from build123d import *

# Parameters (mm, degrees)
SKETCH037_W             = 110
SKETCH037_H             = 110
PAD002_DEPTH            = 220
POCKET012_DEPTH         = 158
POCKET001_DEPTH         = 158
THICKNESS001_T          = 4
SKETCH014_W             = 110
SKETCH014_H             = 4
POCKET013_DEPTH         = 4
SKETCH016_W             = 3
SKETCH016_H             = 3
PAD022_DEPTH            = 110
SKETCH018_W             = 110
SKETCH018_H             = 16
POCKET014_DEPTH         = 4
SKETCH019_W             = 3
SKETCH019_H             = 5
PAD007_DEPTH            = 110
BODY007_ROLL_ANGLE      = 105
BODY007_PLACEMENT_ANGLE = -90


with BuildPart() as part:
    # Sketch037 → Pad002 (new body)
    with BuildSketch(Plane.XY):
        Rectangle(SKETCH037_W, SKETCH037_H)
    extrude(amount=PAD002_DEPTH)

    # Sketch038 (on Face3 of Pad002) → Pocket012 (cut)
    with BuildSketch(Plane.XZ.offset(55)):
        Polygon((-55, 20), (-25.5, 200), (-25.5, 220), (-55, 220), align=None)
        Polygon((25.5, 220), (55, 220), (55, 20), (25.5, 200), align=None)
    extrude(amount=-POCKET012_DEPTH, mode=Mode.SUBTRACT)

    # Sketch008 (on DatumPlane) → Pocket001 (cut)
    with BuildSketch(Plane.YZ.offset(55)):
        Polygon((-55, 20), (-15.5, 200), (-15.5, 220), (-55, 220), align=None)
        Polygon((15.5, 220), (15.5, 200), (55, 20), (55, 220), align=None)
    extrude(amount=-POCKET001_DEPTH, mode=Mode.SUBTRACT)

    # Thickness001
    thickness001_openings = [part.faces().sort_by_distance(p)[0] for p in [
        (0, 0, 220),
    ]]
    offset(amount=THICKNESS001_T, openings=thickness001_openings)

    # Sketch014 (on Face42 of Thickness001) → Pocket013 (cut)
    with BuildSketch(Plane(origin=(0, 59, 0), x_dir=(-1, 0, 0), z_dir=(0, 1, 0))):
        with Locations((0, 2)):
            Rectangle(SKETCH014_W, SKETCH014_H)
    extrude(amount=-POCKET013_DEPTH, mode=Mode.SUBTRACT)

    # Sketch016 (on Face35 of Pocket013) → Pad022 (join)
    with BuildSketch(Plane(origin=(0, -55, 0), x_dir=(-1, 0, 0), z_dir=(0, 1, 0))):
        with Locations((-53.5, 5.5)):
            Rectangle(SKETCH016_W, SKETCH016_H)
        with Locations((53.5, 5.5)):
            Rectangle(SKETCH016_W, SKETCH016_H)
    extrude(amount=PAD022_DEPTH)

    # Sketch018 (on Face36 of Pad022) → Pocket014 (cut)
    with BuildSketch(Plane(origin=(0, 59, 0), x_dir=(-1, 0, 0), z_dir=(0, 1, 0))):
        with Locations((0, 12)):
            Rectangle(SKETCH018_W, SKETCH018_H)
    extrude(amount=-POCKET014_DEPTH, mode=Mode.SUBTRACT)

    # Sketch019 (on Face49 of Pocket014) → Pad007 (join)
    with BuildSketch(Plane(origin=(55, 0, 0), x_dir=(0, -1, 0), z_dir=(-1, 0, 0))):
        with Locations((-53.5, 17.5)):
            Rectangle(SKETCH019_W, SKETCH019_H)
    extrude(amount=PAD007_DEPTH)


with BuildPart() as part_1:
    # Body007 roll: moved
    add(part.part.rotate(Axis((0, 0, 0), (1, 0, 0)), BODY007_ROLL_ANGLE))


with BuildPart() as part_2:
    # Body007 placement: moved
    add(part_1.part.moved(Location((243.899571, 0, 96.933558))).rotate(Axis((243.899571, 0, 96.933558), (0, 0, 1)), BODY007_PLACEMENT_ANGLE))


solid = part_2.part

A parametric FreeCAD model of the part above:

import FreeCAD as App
import Part
import Sketcher


def faces_at(feature, points):
    """Names of the faces that lie closest to the given points."""
    faces = feature.Shape.Faces
    near = lambda p: min(range(len(faces)), key=lambda i: faces[i].distToShape(Part.Vertex(*p))[0])
    return sorted({f"Face{near(p) + 1}" for p in points})


def add_polygon(sketch, points):
    """Adds a closed chain of lines whose ends are joined by coincident constraints."""
    first, n = sketch.GeometryCount, len(points)
    for a, b in zip(points, points[1:] + points[:1]):
        sketch.addGeometry(Part.LineSegment(App.Vector(*a, 0), App.Vector(*b, 0)), False)
    for i in range(n):
        sketch.addConstraint(Sketcher.Constraint("Coincident", first + i, 2, first + (i + 1) % n, 1))

doc = App.newDocument("Part")
body = doc.addObject("PartDesign::Body", "Body")

# Sketch on XY plane
sketch1 = body.newObject("Sketcher::SketchObject", "Sketch")
sketch1.AttachmentSupport = (doc.getObject("XY_Plane"), [""])
sketch1.MapMode = "FlatFace"
add_polygon(sketch1, [(-55, 55), (-55, -55), (55, -55), (55, 55)])  # lines 0-3
sketch1.addConstraint(Sketcher.Constraint("Vertical", 0))
sketch1.addConstraint(Sketcher.Constraint("Horizontal", 1))
sketch1.addConstraint(Sketcher.Constraint("Vertical", 2))
sketch1.addConstraint(Sketcher.Constraint("Horizontal", 3))
sketch1.addConstraint(Sketcher.Constraint("Symmetric", 0, 2, 2, 2, -1, 1))
sketch1.addConstraint(Sketcher.Constraint("Equal", 3, 0))
sketch1.addConstraint(Sketcher.Constraint("DistanceX", 1, 1, 1, 2, 110.0))
pad1 = body.newObject("PartDesign::Pad", "Pad")
pad1.Profile = sketch1
pad1.Length = 220

# Sketch on XZ plane
sketch2 = body.newObject("Sketcher::SketchObject", "Sketch001")
sketch2.AttachmentSupport = (doc.getObject("XZ_Plane"), [""])
sketch2.MapMode = "FlatFace"
sketch2.AttachmentOffset = App.Placement(App.Vector(0, 0, 55), App.Rotation())
add_polygon(sketch2, [(-55, 20), (-26, 200), (-26, 220), (-55, 220)])  # lines 0-3
add_polygon(sketch2, [(55, 220), (26, 220), (26, 200), (55, 20)])  # lines 4-7
sketch2.addConstraint(Sketcher.Constraint("Vertical", 1))
sketch2.addConstraint(Sketcher.Constraint("Horizontal", 2))
sketch2.addConstraint(Sketcher.Constraint("Vertical", 3))
sketch2.addConstraint(Sketcher.Constraint("Horizontal", 4))
sketch2.addConstraint(Sketcher.Constraint("Vertical", 5))
sketch2.addConstraint(Sketcher.Constraint("Vertical", 7))
sketch2.addConstraint(Sketcher.Constraint("Symmetric", 1, 2, 4, 2, -2))
sketch2.addConstraint(Sketcher.Constraint("Symmetric", 3, 2, 6, 2, -2))
sketch2.addConstraint(Sketcher.Constraint("Horizontal", 0, 2, 5, 2))
sketch2.addConstraint(Sketcher.Constraint("DistanceY", 1, 1, 1, 2, 20.0))
sketch2.addConstraint(Sketcher.Constraint("DistanceY", 3, 2, 3, 1, 200.0))
sketch2.addConstraint(Sketcher.Constraint("DistanceX", 2, 2, 2, 1, 29.5))
sketch2.addConstraint(Sketcher.Constraint("DistanceY", -1, 1, 0, 2, 200.0))
sketch2.addConstraint(Sketcher.Constraint("DistanceX", 2, 2, -1, 1, 55.0))
pocket1 = body.newObject("PartDesign::Pocket", "Pocket")
pocket1.Profile = sketch2
pocket1.Length = 158

# Sketch on YZ plane
sketch3 = body.newObject("Sketcher::SketchObject", "Sketch002")
sketch3.AttachmentSupport = (doc.getObject("YZ_Plane"), [""])
sketch3.MapMode = "FlatFace"
sketch3.AttachmentOffset = App.Placement(App.Vector(0, 0, 55), App.Rotation())
add_polygon(sketch3, [(-55, 20), (-16, 200), (-16, 220), (-55, 220)])  # lines 0-3
add_polygon(sketch3, [(16, 220), (16, 200), (55, 20), (55, 220)])  # lines 4-7
sketch3.addConstraint(Sketcher.Constraint("Vertical", 1))
sketch3.addConstraint(Sketcher.Constraint("Horizontal", 2))
sketch3.addConstraint(Sketcher.Constraint("Vertical", 3))
sketch3.addConstraint(Sketcher.Constraint("Vertical", 4))
sketch3.addConstraint(Sketcher.Constraint("Vertical", 6))
sketch3.addConstraint(Sketcher.Constraint("Horizontal", 7))
sketch3.addConstraint(Sketcher.Constraint("Symmetric", 0, 2, 4, 2, -2))
sketch3.addConstraint(Sketcher.Constraint("Symmetric", 3, 2, 5, 2, -2))
sketch3.addConstraint(Sketcher.Constraint("Horizontal", 2, 2, 6, 2))
sketch3.addConstraint(Sketcher.Constraint("DistanceY", 1, 1, 1, 2, 20.0))
sketch3.addConstraint(Sketcher.Constraint("DistanceY", 3, 2, 3, 1, 200.0))
sketch3.addConstraint(Sketcher.Constraint("DistanceX", 2, 2, 2, 1, 39.5))
sketch3.addConstraint(Sketcher.Constraint("DistanceY", -1, 1, 0, 2, 200.0))
sketch3.addConstraint(Sketcher.Constraint("DistanceX", 2, 2, -1, 1, 55.0))
pocket2 = body.newObject("PartDesign::Pocket", "Pocket001")
pocket2.Profile = sketch3
pocket2.Length = 158
doc.recompute()

thickness = body.newObject("PartDesign::Thickness", "Thickness")
thickness.Base = (pocket2, faces_at(pocket2, [(0, 0, 220)]))
thickness.Value = 4
thickness.Reversed = False
thickness.Join = "Arc"

# Sketch on XZ plane
sketch4 = body.newObject("Sketcher::SketchObject", "Sketch003")
sketch4.AttachmentSupport = (doc.getObject("XZ_Plane"), [""])
sketch4.MapMode = "FlatFace"
sketch4.AttachmentOffset = App.Placement(App.Vector(0, 0, -59), App.Rotation())
add_polygon(sketch4, [(55, 4), (55, 0), (-55, 0), (-55, 4)])  # lines 0-3
sketch4.addConstraint(Sketcher.Constraint("Vertical", 0))
sketch4.addConstraint(Sketcher.Constraint("Horizontal", 1))
sketch4.addConstraint(Sketcher.Constraint("Vertical", 2))
sketch4.addConstraint(Sketcher.Constraint("Horizontal", 3))
sketch4.addConstraint(Sketcher.Constraint("Symmetric", 0, 2, 1, 2, -1, 1))
sketch4.addConstraint(Sketcher.Constraint("DistanceX", 1, 2, 1, 1, 110.0))
sketch4.addConstraint(Sketcher.Constraint("DistanceY", 0, 2, 0, 1, 4.0))
pocket3 = body.newObject("PartDesign::Pocket", "Pocket002")
pocket3.Profile = sketch4
pocket3.Length = 4
pocket3.Reversed = True

# Sketch on XZ plane
sketch5 = body.newObject("Sketcher::SketchObject", "Sketch004")
sketch5.AttachmentSupport = (doc.getObject("XZ_Plane"), [""])
sketch5.MapMode = "FlatFace"
sketch5.AttachmentOffset = App.Placement(App.Vector(0, 0, 55), App.Rotation())
add_polygon(sketch5, [(55, 7), (55, 4), (52, 4), (52, 7)])  # lines 0-3
add_polygon(sketch5, [(-52, 7), (-52, 4), (-55, 4), (-55, 7)])  # lines 4-7
sketch5.addConstraint(Sketcher.Constraint("Vertical", 0))
sketch5.addConstraint(Sketcher.Constraint("Horizontal", 1))
sketch5.addConstraint(Sketcher.Constraint("Vertical", 2))
sketch5.addConstraint(Sketcher.Constraint("Horizontal", 3))
sketch5.addConstraint(Sketcher.Constraint("Vertical", 4))
sketch5.addConstraint(Sketcher.Constraint("Horizontal", 5))
sketch5.addConstraint(Sketcher.Constraint("Vertical", 6))
sketch5.addConstraint(Sketcher.Constraint("Horizontal", 7))
sketch5.addConstraint(Sketcher.Constraint("Symmetric", 1, 2, 4, 2, -2))
sketch5.addConstraint(Sketcher.Constraint("Symmetric", 3, 2, 6, 2, -2))
sketch5.addConstraint(Sketcher.Constraint("Equal", 7, 0))
sketch5.addConstraint(Sketcher.Constraint("DistanceX", 1, 2, 1, 1, 3.0))
sketch5.addConstraint(Sketcher.Constraint("DistanceX", -1, 1, 0, 2, 55.0))
sketch5.addConstraint(Sketcher.Constraint("DistanceY", -1, 1, 0, 2, 4.0))
pad2 = body.newObject("PartDesign::Pad", "Pad001")
pad2.Profile = sketch5
pad2.Length = 110
pad2.Reversed = True

# Sketch on XZ plane
sketch6 = body.newObject("Sketcher::SketchObject", "Sketch005")
sketch6.AttachmentSupport = (doc.getObject("XZ_Plane"), [""])
sketch6.MapMode = "FlatFace"
sketch6.AttachmentOffset = App.Placement(App.Vector(0, 0, -59), App.Rotation())
add_polygon(sketch6, [(55, 20), (55, 4), (-55, 4), (-55, 20)])  # lines 0-3
sketch6.addConstraint(Sketcher.Constraint("Vertical", 0))
sketch6.addConstraint(Sketcher.Constraint("Horizontal", 1))
sketch6.addConstraint(Sketcher.Constraint("Vertical", 2))
sketch6.addConstraint(Sketcher.Constraint("Horizontal", 3))
sketch6.addConstraint(Sketcher.Constraint("DistanceX", 1, 2, 1, 1, 110.0))
sketch6.addConstraint(Sketcher.Constraint("DistanceY", 0, 2, 0, 1, 16.0))
sketch6.addConstraint(Sketcher.Constraint("DistanceX", -1, 1, 0, 2, 55.0))
sketch6.addConstraint(Sketcher.Constraint("DistanceY", -1, 1, 0, 2, 4.0))
pocket4 = body.newObject("PartDesign::Pocket", "Pocket003")
pocket4.Profile = sketch6
pocket4.Length = 4
pocket4.Reversed = True

# Sketch on YZ plane
sketch7 = body.newObject("Sketcher::SketchObject", "Sketch006")
sketch7.AttachmentSupport = (doc.getObject("YZ_Plane"), [""])
sketch7.MapMode = "FlatFace"
sketch7.AttachmentOffset = App.Placement(App.Vector(0, 0, 55), App.Rotation())
add_polygon(sketch7, [(55, 20), (55, 15), (52, 15), (52, 20)])  # lines 0-3
sketch7.addConstraint(Sketcher.Constraint("Vertical", 0))
sketch7.addConstraint(Sketcher.Constraint("Horizontal", 1))
sketch7.addConstraint(Sketcher.Constraint("Vertical", 2))
sketch7.addConstraint(Sketcher.Constraint("Horizontal", 3))
sketch7.addConstraint(Sketcher.Constraint("DistanceX", 1, 2, 1, 1, 3.0))
sketch7.addConstraint(Sketcher.Constraint("DistanceY", 0, 2, 0, 1, 5.0))
sketch7.addConstraint(Sketcher.Constraint("DistanceX", -1, 1, 0, 2, 55.0))
sketch7.addConstraint(Sketcher.Constraint("DistanceY", -1, 1, 0, 2, 15.0))
pad3 = body.newObject("PartDesign::Pad", "Pad002")
pad3.Profile = sketch7
pad3.Length = 110
pad3.Reversed = True
body2 = doc.addObject("PartDesign::Body", "Body001")
doc.recompute()

body.Placement = App.Placement(App.Vector(0, 0, 0), App.Rotation(App.Vector(1, 0, 0), 105))
boolean = body2.newObject("PartDesign::Boolean", "Boolean")
boolean.Type = "Fuse"
boolean.addObjects([body])
body3 = doc.addObject("PartDesign::Body", "Body002")
doc.recompute()

body2.Placement = App.Placement(App.Vector(243.899571, 0, 96.933558), App.Rotation(App.Vector(0, 0, 1), 270))
boolean2 = body3.newObject("PartDesign::Boolean", "Boolean001")
boolean2.Type = "Fuse"
boolean2.addObjects([body2])

doc.recompute()
